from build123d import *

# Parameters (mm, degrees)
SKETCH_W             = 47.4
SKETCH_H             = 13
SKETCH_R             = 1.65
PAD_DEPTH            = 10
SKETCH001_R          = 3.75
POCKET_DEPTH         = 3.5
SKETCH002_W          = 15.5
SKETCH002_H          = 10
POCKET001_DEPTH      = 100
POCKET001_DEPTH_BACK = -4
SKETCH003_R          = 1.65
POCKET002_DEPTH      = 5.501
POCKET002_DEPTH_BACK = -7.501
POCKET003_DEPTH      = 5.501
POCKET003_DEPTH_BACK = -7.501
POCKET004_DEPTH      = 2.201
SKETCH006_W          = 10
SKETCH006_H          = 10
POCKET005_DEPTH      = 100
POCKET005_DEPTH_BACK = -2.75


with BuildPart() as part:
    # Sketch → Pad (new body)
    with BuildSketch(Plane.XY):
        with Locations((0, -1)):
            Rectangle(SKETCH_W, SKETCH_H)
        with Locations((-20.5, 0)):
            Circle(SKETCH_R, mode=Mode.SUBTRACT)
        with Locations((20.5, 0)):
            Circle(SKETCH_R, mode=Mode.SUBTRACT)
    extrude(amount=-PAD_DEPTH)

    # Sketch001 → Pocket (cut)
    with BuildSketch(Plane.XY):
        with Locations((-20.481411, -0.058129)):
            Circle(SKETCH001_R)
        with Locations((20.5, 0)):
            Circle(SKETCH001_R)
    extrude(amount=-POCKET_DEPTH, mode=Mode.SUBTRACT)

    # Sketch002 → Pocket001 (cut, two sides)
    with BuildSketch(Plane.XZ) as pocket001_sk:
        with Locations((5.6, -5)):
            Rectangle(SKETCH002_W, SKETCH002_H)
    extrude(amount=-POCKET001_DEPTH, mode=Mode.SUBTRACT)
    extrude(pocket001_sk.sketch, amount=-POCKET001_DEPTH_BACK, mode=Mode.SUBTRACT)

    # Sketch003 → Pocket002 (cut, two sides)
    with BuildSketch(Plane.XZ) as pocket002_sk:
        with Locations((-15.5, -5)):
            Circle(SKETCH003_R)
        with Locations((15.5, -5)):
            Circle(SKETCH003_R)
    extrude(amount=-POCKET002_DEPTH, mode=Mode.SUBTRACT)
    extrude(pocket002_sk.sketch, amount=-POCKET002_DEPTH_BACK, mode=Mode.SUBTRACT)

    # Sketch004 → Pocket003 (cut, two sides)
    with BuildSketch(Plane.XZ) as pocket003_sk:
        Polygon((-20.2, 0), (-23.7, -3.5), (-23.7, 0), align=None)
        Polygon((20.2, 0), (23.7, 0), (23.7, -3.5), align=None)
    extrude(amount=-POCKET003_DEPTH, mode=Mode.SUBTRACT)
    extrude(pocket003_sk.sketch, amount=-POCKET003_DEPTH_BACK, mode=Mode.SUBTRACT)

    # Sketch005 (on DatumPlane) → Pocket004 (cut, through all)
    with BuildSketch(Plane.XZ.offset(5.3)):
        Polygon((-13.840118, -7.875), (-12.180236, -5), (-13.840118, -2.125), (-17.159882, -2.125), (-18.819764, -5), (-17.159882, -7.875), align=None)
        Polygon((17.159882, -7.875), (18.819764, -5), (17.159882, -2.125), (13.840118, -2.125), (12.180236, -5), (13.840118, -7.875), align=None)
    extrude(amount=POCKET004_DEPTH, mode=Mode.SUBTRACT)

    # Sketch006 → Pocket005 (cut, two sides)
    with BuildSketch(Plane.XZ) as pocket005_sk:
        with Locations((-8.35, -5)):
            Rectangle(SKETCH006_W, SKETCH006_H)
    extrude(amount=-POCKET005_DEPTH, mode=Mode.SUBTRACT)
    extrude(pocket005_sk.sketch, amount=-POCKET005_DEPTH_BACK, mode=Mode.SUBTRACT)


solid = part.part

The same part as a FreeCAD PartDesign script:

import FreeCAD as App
import Part
import Sketcher

V = App.Vector
Q = App.Units.Quantity


def add_polygon(sketch, points):
    """Adds a closed chain of lines whose ends are joined by coincident constraints."""
    first, n = sketch.GeometryCount, len(points)
    for a, b in zip(points, points[1:] + points[:1]):
        sketch.addGeometry(Part.LineSegment(App.Vector(*a, 0), App.Vector(*b, 0)), False)
    for i in range(n):
        sketch.addConstraint(Sketcher.Constraint("Coincident", first + i, 2, first + (i + 1) % n, 1))

doc = App.newDocument("Part")
params = doc.addObject("Spreadsheet::Sheet", "Params")
for row, (alias, value) in enumerate([
    ("sketch1_diameter", "3.3 mm"),
    ("sketch1_height", "13 mm"),
    ("sketch1_width", "47.4 mm"),
    ("pad1_length", "10 mm"),
    ("sketch2_diameter", "7.5 mm"),
    ("pocket1_length", "3.5 mm"),
    ("sketch3_height", "10 mm"),
    ("sketch3_width", "15.5 mm"),
    ("pocket2_length", "100 mm"),
    ("pocket2_length2", "4 mm"),
    ("sketch4_diameter", "3.3 mm"),
    ("sketch5_width", "3.5 mm"),
    ("sketch7_width", "10 mm"),
    ("pocket6_length", "100 mm"),
    ("pocket6_length2", "2.75 mm"),
], start=1):
    params.set(f"A{row}", alias)
    params.set(f"B{row}", "=" + value)
    params.setAlias(f"B{row}", alias)

body = doc.addObject("PartDesign::Body", "Body")

# Sketch on XY plane
sketch1 = doc.addObject("Sketcher::SketchObject", "Sketch")
body.addObject(sketch1)
sketch1.AttachmentSupport = (doc.XY_Plane, [""])
sketch1.MapMode = "FlatFace"
add_polygon(sketch1, [(-23.7, 5.5), (-23.7, -7.5), (23.7, -7.5), (23.7, 5.5)])  # lines 0-3
sketch1.addGeometry(Part.Circle(V(-20.5, 0, 0), V(0, 0, 1), 1.65), False)  # 4
sketch1.addGeometry(Part.Circle(V(20.5, 0, 0), V(0, 0, 1), 1.65), False)  # 5
sketch1.addConstraint([
    Sketcher.Constraint("Vertical", 0),
    Sketcher.Constraint("Horizontal", 1),
    Sketcher.Constraint("Vertical", 2),
    Sketcher.Constraint("Horizontal", 3),
    Sketcher.Constraint("Equal", 4, 5),
    Sketcher.Constraint("Symmetric", 4, 3, 5, 3, -1, 1),
    Sketcher.Constraint("PointOnObject", 4, 3, -1),
    Sketcher.Constraint("Diameter", 4, Q("3.3 mm")),
    Sketcher.Constraint("DistanceY", 0, 2, 0, 1, Q("13 mm")),
    Sketcher.Constraint("DistanceX", 1, 1, 1, 2, Q("47.4 mm")),
    Sketcher.Constraint("DistanceX", 4, 3, 5, 3, Q("41 mm")),
    Sketcher.Constraint("DistanceX", 0, 2, -1, 1, Q("23.7 mm")),
    Sketcher.Constraint("DistanceY", 0, 2, -1, 1, Q("7.5 mm")),
])
sketch1.setExpression("Constraints[11]", "Params.sketch1_diameter")
sketch1.setExpression("Constraints[12]", "Params.sketch1_height")
sketch1.setExpression("Constraints[13]", "Params.sketch1_width")
pad1 = doc.addObject("PartDesign::Pad", "Pad")
body.addObject(pad1)
pad1.Profile = sketch1
pad1.setExpression("Length", "Params.pad1_length")
pad1.Reversed = True

# Sketch on XY plane
sketch2 = doc.addObject("Sketcher::SketchObject", "Sketch001")
body.addObject(sketch2)
sketch2.AttachmentSupport = (doc.XY_Plane, [""])
sketch2.MapMode = "FlatFace"
sketch2.addGeometry([
    Part.Circle(V(-20.481411, -0.058129, 0), V(0, 0, 1), 3.75),
    Part.Circle(V(20.5, 0, 0), V(0, 0, 1), 3.75),
], False)
sketch2.addConstraint([
    Sketcher.Constraint("Equal", 0, 1),
    Sketcher.Constraint("PointOnObject", 1, 3, -1),
    Sketcher.Constraint("Diameter", 0, Q("7.5 mm")),
    Sketcher.Constraint("DistanceX", -1, 1, 1, 3, Q("20.5 mm")),
    Sketcher.Constraint("DistanceX", 0, 3, -1, 1, Q("20.481411 mm")),
    Sketcher.Constraint("DistanceY", 0, 3, -1, 1, Q("0.058129 mm")),
])
sketch2.setExpression("Constraints[2]", "Params.sketch2_diameter")
pocket1 = doc.addObject("PartDesign::Pocket", "Pocket")
body.addObject(pocket1)
pocket1.Profile = sketch2
pocket1.setExpression("Length", "Params.pocket1_length")

# Sketch on XZ plane
sketch3 = doc.addObject("Sketcher::SketchObject", "Sketch002")
body.addObject(sketch3)
sketch3.AttachmentSupport = (doc.XZ_Plane, [""])
sketch3.MapMode = "FlatFace"
add_polygon(sketch3, [(-2.15, 0), (-2.15, -10), (13.35, -10), (13.35, 0)])  # lines 0-3
sketch3.addConstraint([
    Sketcher.Constraint("Vertical", 0),
    Sketcher.Constraint("Horizontal", 1),
    Sketcher.Constraint("Vertical", 2),
    Sketcher.Constraint("Horizontal", 3),
    Sketcher.Constraint("PointOnObject", 2, 2, -1),
    Sketcher.Constraint("DistanceY", 0, 2, 0, 1, Q("10 mm")),
    Sketcher.Constraint("DistanceX", 1, 1, 1, 2, Q("15.5 mm")),
    Sketcher.Constraint("DistanceX", 0, 2, -1, 1, Q("2.15 mm")),
])
sketch3.setExpression("Constraints[9]", "Params.sketch3_height")
sketch3.setExpression("Constraints[10]", "Params.sketch3_width")
pocket2 = doc.addObject("PartDesign::Pocket", "Pocket001")
body.addObject(pocket2)
pocket2.Profile = sketch3
pocket2.Type = "TwoLengths"
pocket2.setExpression("Length", "Params.pocket2_length")
pocket2.setExpression("Length2", "Params.pocket2_length2")

# Sketch on XZ plane
sketch4 = doc.addObject("Sketcher::SketchObject", "Sketch003")
body.addObject(sketch4)
sketch4.AttachmentSupport = (doc.XZ_Plane, [""])
sketch4.MapMode = "FlatFace"
sketch4.addGeometry([
    Part.Circle(V(-15.5, -5, 0), V(0, 0, 1), 1.65),
    Part.Circle(V(15.5, -5, 0), V(0, 0, 1), 1.65),
], False)
sketch4.addConstraint([
    Sketcher.Constraint("Equal", 0, 1),
    Sketcher.Constraint("Symmetric", 0, 3, 1, 3, -2),
    Sketcher.Constraint("Diameter", 0, Q("3.3 mm")),
    Sketcher.Constraint("DistanceY", 0, 3, -1, 1, Q("5 mm")),
    Sketcher.Constraint("DistanceX", 0, 3, 1, 3, Q("31 mm")),
])
sketch4.setExpression("Constraints[2]", "Params.sketch4_diameter")
pocket3 = doc.addObject("PartDesign::Pocket", "Pocket002")
body.addObject(pocket3)
pocket3.Profile = sketch4
pocket3.Type = "ThroughAll"
pocket3.Midplane = True

# Sketch on XZ plane
sketch5 = doc.addObject("Sketcher::SketchObject", "Sketch004")
body.addObject(sketch5)
sketch5.AttachmentSupport = (doc.XZ_Plane, [""])
sketch5.MapMode = "FlatFace"
add_polygon(sketch5, [(-23.7, -3.5), (-20.2, 0), (-23.7, 0)])  # lines 0-2
add_polygon(sketch5, [(23.7, 0), (20.2, 0), (23.7, -3.5)])  # lines 3-5
sketch5.addConstraint([
    Sketcher.Constraint("Horizontal", 1),
    Sketcher.Constraint("Vertical", 2),
    Sketcher.Constraint("Horizontal", 3),
    Sketcher.Constraint("Vertical", 5),
    Sketcher.Constraint("Symmetric", 0, 2, 3, 2, -1, 1),
    Sketcher.Constraint("Symmetric", 2, 2, 4, 2, -2),
    Sketcher.Constraint("PointOnObject", 0, 2, -1),
    Sketcher.Constraint("Perpendicular", 0, 4),
    Sketcher.Constraint("DistanceX", 1, 2, 1, 1, Q("3.5 mm")),
    Sketcher.Constraint("DistanceX", 0, 2, -1, 1, Q("20.2 mm")),
])
sketch5.setExpression("Constraints[14]", "Params.sketch5_width")
pocket4 = doc.addObject("PartDesign::Pocket", "Pocket003")
body.addObject(pocket4)
pocket4.Profile = sketch5
pocket4.Type = "ThroughAll"
pocket4.Midplane = True

# Sketch on XZ plane
sketch6 = doc.addObject("Sketcher::SketchObject", "Sketch005")
body.addObject(sketch6)
sketch6.AttachmentSupport = (doc.XZ_Plane, [""])
sketch6.MapMode = "FlatFace"
sketch6.AttachmentOffset = App.Placement(V(0, 0, 5.3), App.Rotation())
add_polygon(sketch6, [(-13.840118, -7.875), (-12.180236, -5), (-13.840118, -2.125), (-17.159882, -2.125), (-18.819764, -5), (-17.159882, -7.875)])  # lines 0-5
add_polygon(sketch6, [(17.159882, -7.875), (18.819764, -5), (17.159882, -2.125), (13.840118, -2.125), (12.180236, -5), (13.840118, -7.875)])  # lines 6-11
sketch6.addConstraint([
    Sketcher.Constraint("Horizontal", 2),
    Sketcher.Constraint("Horizontal", 5),
    Sketcher.Constraint("Horizontal", 8),
    Sketcher.Constraint("Horizontal", 11),
    Sketcher.Constraint("Symmetric", 3, 2, 6, 2, -2),
    Sketcher.Constraint("Symmetric", 2, 2, 7, 2, -2),
    Sketcher.Constraint("Symmetric", 0, 2, 9, 2, -2),
    Sketcher.Constraint("Symmetric", 5, 2, 10, 2, -2),
    Sketcher.Constraint("Parallel", 0, 3),
    Sketcher.Constraint("Parallel", 1, 4),
    Sketcher.Constraint("Parallel", 3, 6),
    Sketcher.Constraint("Parallel", 4, 7),
    Sketcher.Constraint("Parallel", 6, 9),
    Sketcher.Constraint("Horizontal", 0, 2, 3, 2),
    Sketcher.Constraint("Vertical", 2, 2, 4, 2),
    Sketcher.Constraint("Angle", 0, Q("60 deg")),
    Sketcher.Constraint("DistanceY", 0, 2, -1, 1, Q("5 mm")),
    Sketcher.Constraint("DistanceX", 0, 2, 6, 2, Q("31 mm")),
    Sketcher.Constraint("DistanceY", 4, 2, 2, 2, Q("5.75 mm")),
    Sketcher.Constraint("DistanceX", 2, 2, 2, 1, Q("3.319764 mm")),
])
pocket5 = doc.addObject("PartDesign::Pocket", "Pocket004")
body.addObject(pocket5)
pocket5.Profile = sketch6
pocket5.Type = "ThroughAll"
pocket5.Reversed = True

# Sketch on XZ plane
sketch7 = doc.addObject("Sketcher::SketchObject", "Sketch006")
body.addObject(sketch7)
sketch7.AttachmentSupport = (doc.XZ_Plane, [""])
sketch7.MapMode = "FlatFace"
add_polygon(sketch7, [(-13.35, 0), (-13.35, -10), (-3.35, -10), (-3.35, 0)])  # lines 0-3
sketch7.addConstraint([
    Sketcher.Constraint("Vertical", 0),
    Sketcher.Constraint("Horizontal", 1),
    Sketcher.Constraint("Vertical", 2),
    Sketcher.Constraint("Horizontal", 3),
    Sketcher.Constraint("PointOnObject", 2, 2, -1),
    Sketcher.Constraint("Equal", 3, 0),
    Sketcher.Constraint("DistanceX", 1, 1, 1, 2, Q("10 mm")),
    Sketcher.Constraint("DistanceX", 0, 2, -1, 1, Q("13.35 mm")),
])
sketch7.setExpression("Constraints[10]", "Params.sketch7_width")
pocket6 = doc.addObject("PartDesign::Pocket", "Pocket005")
body.addObject(pocket6)
pocket6.Profile = sketch7
pocket6.Type = "TwoLengths"
pocket6.setExpression("Length", "Params.pocket6_length")
pocket6.setExpression("Length2", "Params.pocket6_length2")

doc.recompute()
